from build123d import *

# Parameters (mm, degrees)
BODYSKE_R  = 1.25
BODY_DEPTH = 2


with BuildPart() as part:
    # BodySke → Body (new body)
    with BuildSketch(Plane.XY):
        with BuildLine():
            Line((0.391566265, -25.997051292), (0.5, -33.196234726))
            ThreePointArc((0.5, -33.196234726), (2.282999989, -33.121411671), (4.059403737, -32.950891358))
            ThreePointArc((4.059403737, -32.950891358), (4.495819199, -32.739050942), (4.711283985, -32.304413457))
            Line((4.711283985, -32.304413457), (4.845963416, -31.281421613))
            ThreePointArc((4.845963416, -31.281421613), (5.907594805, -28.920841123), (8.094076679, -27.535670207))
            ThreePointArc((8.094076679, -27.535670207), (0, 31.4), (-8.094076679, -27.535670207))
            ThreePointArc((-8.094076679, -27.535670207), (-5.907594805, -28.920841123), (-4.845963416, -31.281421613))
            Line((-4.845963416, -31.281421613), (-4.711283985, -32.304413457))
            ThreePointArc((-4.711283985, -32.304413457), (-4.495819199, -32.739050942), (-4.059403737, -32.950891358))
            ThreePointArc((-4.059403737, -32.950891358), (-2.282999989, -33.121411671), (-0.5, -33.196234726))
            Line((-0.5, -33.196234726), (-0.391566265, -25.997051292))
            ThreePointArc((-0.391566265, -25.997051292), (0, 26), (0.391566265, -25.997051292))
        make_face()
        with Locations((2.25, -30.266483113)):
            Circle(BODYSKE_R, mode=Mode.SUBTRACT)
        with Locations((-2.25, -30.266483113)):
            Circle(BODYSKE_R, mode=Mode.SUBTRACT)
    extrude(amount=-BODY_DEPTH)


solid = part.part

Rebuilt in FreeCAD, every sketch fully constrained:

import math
import FreeCAD as App
import Part
import Sketcher
Q = App.Units.Quantity

doc = App.newDocument("Part")
body = doc.addObject("PartDesign::Body", "Body")

sketch1 = doc.addObject("Sketcher::SketchObject", "Sketch")
body.addObject(sketch1)
sketch1.AttachmentSupport = (doc.XY_Plane, [""])
sketch1.MapMode = "FlatFace"
sketch1.addGeometry(Part.LineSegment(App.Vector(0.4, -26, 0), App.Vector(0.5, -33.2, 0)), False)
sketch1.addGeometry(Part.ArcOfCircle(Part.Circle(App.Vector(0, 0, 0), App.Vector(0, 0, 1), 33.2), math.radians(-89.14), math.radians(-82.98)), False)
sketch1.addGeometry(Part.ArcOfCircle(Part.Circle(App.Vector(4, -32.2, 0), App.Vector(0, 0, 1), 0.8), math.radians(-83), math.radians(-8)), False)
sketch1.addGeometry(Part.LineSegment(App.Vector(4.7, -32.3, 0), App.Vector(4.8, -31.3, 0)), False)
sketch1.addGeometry(Part.ArcOfCircle(Part.Circle(App.Vector(9.3, -31.9, 0), App.Vector(0, 0, 1), 4.5), math.radians(106), math.radians(172)), False)
sketch1.addGeometry(Part.ArcOfCircle(Part.Circle(App.Vector(0, 1.4, 0), App.Vector(0, 0, 1), 30), math.radians(-74), math.radians(254)), False)
sketch1.addGeometry(Part.ArcOfCircle(Part.Circle(App.Vector(-9.3, -31.9, 0), App.Vector(0, 0, 1), 4.5), math.radians(8), math.radians(74)), False)
sketch1.addGeometry(Part.LineSegment(App.Vector(-4.8, -31.3, 0), App.Vector(-4.7, -32.3, 0)), False)
sketch1.addGeometry(Part.ArcOfCircle(Part.Circle(App.Vector(-4, -32.2, 0), App.Vector(0, 0, 1), 0.8), math.radians(-172), math.radians(-97)), False)
sketch1.addGeometry(Part.ArcOfCircle(Part.Circle(App.Vector(0, 0, 0), App.Vector(0, 0, 1), 33.2), math.radians(-97.02), math.radians(-90.86)), False)
sketch1.addGeometry(Part.LineSegment(App.Vector(-0.5, -33.2, 0), App.Vector(-0.4, -26, 0)), False)
sketch1.addGeometry(Part.ArcOfCircle(Part.Circle(App.Vector(0, 0, 0), App.Vector(0, 0, 1), 26), math.radians(-89), math.radians(269)), False)
sketch1.addGeometry(Part.Circle(App.Vector(-2.2, -30.3, 0), App.Vector(0, 0, 1), 1.2), False)
sketch1.addGeometry(Part.Circle(App.Vector(2.2, -30.3, 0), App.Vector(0, 0, 1), 1.2), False)
sketch1.addConstraint(Sketcher.Constraint("Coincident", 0, 2, 1, 1))
sketch1.addConstraint(Sketcher.Constraint("Tangent", 1, 2, 2, 1))
sketch1.addConstraint(Sketcher.Constraint("Tangent", 2, 2, 3, 1))
sketch1.addConstraint(Sketcher.Constraint("Tangent", 3, 2, 4, 2))
sketch1.addConstraint(Sketcher.Constraint("Tangent", 4, 1, 5, 1))
sketch1.addConstraint(Sketcher.Constraint("Tangent", 5, 2, 6, 2))
sketch1.addConstraint(Sketcher.Constraint("Tangent", 6, 1, 7, 1))
sketch1.addConstraint(Sketcher.Constraint("Tangent", 7, 2, 8, 1))
sketch1.addConstraint(Sketcher.Constraint("Tangent", 8, 2, 9, 1))
sketch1.addConstraint(Sketcher.Constraint("Coincident", 9, 2, 10, 1))
sketch1.addConstraint(Sketcher.Constraint("Coincident", 10, 2, 11, 2))
sketch1.addConstraint(Sketcher.Constraint("Coincident", 11, 1, 0, 1))
sketch1.addConstraint(Sketcher.Constraint("Coincident", 1, 3, -1, 1))
sketch1.addConstraint(Sketcher.Constraint("Coincident", 9, 3, -1, 1))
sketch1.addConstraint(Sketcher.Constraint("Coincident", 11, 3, -1, 1))
sketch1.addConstraint(Sketcher.Constraint("Equal", 4, 6))
sketch1.addConstraint(Sketcher.Constraint("Equal", 2, 8))
sketch1.addConstraint(Sketcher.Constraint("Equal", 1, 9))
sketch1.addConstraint(Sketcher.Constraint("Equal", 12, 13))
sketch1.addConstraint(Sketcher.Constraint("Symmetric", 4, 3, 6, 3, -2))
sketch1.addConstraint(Sketcher.Constraint("Symmetric", 12, 3, 13, 3, -2))
sketch1.addConstraint(Sketcher.Constraint("Horizontal", 2, 3, 8, 3))
sketch1.addConstraint(Sketcher.Constraint("Horizontal", 0, 2, 9, 2))
sketch1.addConstraint(Sketcher.Constraint("Horizontal", 10, 2, 11, 1))
sketch1.addConstraint(Sketcher.Constraint("Radius", 11, 26.0))
sketch1.addConstraint(Sketcher.Constraint("Diameter", 12, 2.5))
sketch1.addConstraint(Sketcher.Constraint("Radius", 1, 33.2))
sketch1.addConstraint(Sketcher.Constraint("Radius", 2, 0.75))
sketch1.addConstraint(Sketcher.Constraint("Angle", 3, Q("82.5 deg")))
sketch1.addConstraint(Sketcher.Constraint("DistanceX", 9, 2, 0, 2, 1.0))
sketch1.addConstraint(Sketcher.Constraint("DistanceX", 12, 3, 13, 3, 4.5))
sketch1.addConstraint(Sketcher.Constraint("Radius", 4, 4.499677))
sketch1.addConstraint(Sketcher.Constraint("Radius", 5, 30.023645))
sketch1.addConstraint(Sketcher.Constraint("DistanceX", -1, 1, 2, 3, 3.9677))
sketch1.addConstraint(Sketcher.Constraint("Distance", 3, 1.031819))
sketch1.addConstraint(Sketcher.Constraint("DistanceY", 10, 2, -1, 1, 25.997051))
sketch1.addConstraint(Sketcher.Constraint("DistanceY", 0, 2, 13, 3, 2.929752))
pad1 = doc.addObject("PartDesign::Pad", "Pad")
body.addObject(pad1)
pad1.Profile = sketch1
pad1.Length = 2
pad1.Reversed = True

doc.recompute()
